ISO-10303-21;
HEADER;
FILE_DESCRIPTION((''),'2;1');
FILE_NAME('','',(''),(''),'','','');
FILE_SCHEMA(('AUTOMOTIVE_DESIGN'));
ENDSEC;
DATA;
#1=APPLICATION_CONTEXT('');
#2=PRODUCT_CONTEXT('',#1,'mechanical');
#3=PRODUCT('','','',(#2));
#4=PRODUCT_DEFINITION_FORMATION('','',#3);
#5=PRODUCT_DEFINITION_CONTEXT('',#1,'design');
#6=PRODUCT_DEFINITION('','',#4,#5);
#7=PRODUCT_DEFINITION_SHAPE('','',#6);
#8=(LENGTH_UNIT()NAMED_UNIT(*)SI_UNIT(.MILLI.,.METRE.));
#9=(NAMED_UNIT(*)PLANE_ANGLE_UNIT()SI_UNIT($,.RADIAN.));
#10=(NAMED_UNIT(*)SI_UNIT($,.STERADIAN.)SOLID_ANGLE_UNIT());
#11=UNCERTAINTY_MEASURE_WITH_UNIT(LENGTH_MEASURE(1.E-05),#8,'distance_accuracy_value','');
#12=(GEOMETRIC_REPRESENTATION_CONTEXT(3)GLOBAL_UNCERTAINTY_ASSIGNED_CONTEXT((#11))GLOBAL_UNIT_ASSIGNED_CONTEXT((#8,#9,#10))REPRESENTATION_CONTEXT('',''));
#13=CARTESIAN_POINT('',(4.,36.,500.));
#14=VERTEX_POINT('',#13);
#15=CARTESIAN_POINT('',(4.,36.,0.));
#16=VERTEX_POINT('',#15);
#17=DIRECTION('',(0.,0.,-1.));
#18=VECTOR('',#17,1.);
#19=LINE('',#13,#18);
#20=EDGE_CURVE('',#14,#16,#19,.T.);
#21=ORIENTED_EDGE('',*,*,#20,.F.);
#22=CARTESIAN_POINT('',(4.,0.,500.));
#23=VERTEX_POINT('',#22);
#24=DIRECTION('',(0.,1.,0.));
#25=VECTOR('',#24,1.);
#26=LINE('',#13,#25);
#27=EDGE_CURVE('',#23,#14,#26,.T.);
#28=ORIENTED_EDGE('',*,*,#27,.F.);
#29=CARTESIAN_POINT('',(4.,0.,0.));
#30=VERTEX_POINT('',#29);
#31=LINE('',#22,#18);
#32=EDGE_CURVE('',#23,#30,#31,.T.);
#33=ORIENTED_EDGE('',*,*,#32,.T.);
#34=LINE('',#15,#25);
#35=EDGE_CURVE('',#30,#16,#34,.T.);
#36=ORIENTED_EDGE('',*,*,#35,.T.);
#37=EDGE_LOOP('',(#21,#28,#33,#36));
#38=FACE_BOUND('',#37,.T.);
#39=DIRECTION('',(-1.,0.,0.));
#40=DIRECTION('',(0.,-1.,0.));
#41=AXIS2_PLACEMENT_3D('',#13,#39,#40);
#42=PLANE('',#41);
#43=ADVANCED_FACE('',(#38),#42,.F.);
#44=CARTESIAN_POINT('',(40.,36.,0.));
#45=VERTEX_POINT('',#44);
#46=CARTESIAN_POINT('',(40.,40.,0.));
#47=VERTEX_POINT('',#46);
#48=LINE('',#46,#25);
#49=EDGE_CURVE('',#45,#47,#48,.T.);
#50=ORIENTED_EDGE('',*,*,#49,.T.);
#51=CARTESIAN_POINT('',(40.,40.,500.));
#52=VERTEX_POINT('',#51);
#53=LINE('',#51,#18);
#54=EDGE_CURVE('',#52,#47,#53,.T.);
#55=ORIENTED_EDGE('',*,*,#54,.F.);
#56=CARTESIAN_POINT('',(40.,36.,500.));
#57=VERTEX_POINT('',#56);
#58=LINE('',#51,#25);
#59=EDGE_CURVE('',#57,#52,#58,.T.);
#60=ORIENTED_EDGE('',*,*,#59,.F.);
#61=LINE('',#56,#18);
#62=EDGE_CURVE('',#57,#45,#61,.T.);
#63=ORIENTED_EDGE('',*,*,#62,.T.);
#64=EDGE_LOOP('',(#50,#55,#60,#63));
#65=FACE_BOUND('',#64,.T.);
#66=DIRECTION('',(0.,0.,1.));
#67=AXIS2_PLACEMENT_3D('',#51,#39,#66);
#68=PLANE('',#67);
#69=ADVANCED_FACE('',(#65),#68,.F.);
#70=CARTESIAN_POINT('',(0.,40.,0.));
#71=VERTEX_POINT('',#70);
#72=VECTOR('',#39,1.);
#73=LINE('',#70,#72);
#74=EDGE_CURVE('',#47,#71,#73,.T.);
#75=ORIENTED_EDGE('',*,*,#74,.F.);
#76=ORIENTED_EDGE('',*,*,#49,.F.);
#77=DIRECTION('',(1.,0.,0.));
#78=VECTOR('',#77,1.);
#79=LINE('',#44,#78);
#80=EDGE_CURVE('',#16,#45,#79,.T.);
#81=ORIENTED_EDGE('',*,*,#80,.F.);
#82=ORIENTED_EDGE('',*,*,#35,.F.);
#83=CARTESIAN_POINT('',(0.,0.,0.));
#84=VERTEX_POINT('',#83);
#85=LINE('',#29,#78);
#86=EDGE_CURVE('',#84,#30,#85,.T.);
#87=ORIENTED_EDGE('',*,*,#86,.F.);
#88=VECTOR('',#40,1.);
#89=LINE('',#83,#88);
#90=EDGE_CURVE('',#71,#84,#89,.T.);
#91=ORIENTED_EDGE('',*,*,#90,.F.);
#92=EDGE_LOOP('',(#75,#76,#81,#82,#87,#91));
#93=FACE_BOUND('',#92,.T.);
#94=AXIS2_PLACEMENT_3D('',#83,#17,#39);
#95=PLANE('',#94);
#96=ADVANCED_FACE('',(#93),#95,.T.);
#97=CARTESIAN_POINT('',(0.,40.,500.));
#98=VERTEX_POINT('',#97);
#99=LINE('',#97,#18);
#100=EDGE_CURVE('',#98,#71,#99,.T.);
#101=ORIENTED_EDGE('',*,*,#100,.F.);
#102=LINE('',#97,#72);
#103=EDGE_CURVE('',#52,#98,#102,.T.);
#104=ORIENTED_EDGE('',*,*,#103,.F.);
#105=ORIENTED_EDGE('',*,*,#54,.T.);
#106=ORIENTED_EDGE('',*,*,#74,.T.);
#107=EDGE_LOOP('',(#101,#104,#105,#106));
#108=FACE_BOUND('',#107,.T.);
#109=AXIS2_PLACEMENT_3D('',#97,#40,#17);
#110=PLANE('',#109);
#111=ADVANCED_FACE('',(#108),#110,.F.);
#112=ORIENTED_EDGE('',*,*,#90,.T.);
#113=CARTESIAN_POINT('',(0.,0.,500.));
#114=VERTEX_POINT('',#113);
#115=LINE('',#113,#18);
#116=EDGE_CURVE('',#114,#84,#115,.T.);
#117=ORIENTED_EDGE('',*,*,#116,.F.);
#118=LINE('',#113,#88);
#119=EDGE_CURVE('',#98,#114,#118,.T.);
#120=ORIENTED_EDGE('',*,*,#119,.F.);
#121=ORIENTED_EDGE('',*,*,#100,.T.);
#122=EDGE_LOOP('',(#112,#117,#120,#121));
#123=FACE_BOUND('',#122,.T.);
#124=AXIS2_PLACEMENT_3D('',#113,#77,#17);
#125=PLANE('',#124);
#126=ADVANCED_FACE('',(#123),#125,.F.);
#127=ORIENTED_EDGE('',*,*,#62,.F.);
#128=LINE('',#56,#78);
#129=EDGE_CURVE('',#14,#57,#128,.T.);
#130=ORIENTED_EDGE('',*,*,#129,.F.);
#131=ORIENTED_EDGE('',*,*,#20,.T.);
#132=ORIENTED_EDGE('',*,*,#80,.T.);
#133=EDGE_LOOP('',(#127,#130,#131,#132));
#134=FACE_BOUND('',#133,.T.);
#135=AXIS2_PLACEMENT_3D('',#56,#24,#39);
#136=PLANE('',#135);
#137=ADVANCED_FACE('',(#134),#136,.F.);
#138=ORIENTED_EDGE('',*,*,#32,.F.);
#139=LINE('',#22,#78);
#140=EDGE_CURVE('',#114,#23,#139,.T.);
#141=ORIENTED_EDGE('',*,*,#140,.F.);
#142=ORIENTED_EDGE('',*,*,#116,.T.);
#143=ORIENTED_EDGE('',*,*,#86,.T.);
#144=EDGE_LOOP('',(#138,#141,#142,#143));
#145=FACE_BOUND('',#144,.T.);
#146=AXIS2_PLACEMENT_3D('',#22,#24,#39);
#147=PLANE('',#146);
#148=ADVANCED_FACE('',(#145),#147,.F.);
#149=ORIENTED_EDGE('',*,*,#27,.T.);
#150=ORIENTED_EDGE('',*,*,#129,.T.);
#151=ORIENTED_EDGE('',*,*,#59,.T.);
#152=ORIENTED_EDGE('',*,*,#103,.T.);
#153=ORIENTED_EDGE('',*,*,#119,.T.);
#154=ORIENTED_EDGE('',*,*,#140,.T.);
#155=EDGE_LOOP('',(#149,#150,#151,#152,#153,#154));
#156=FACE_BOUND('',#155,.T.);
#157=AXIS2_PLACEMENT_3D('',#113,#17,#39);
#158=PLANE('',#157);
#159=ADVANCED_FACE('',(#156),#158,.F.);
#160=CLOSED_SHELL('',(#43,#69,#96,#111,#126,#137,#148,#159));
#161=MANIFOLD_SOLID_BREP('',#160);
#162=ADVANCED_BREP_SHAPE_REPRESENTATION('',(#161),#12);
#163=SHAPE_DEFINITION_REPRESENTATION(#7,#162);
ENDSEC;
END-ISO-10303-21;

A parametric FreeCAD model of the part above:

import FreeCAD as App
import Part
import Sketcher

V = App.Vector
Q = App.Units.Quantity

doc = App.newDocument("Part")
body = doc.addObject("PartDesign::Body", "Body")

# Sketch on XY plane
sketch1 = doc.addObject("Sketcher::SketchObject", "Sketch")
body.addObject(sketch1)
sketch1.AttachmentSupport = (doc.XY_Plane, [""])
sketch1.MapMode = "FlatFace"
sketch1.addGeometry([
    Part.LineSegment(V(0, 40, 0), V(0, 0, 0)),  # 0
    Part.LineSegment(V(0, 0, 0), V(4, 0, 0)),  # 1
    Part.LineSegment(V(4, 0, 0), V(4, 36, 0)),  # 2
    Part.LineSegment(V(4, 36, 0), V(40, 36, 0)),  # 3
    Part.LineSegment(V(40, 36, 0), V(40, 40, 0)),  # 4
    Part.LineSegment(V(40, 40, 0), V(0, 40, 0)),  # 5
], False)
sketch1.addConstraint([
    Sketcher.Constraint("Coincident", 0, 2, 1, 1),
    Sketcher.Constraint("Coincident", 1, 2, 2, 1),
    Sketcher.Constraint("Coincident", 2, 2, 3, 1),
    Sketcher.Constraint("Coincident", 3, 2, 4, 1),
    Sketcher.Constraint("Coincident", 4, 2, 5, 1),
    Sketcher.Constraint("Coincident", 5, 2, 0, 1),
    Sketcher.Constraint("Vertical", 0),
    Sketcher.Constraint("Horizontal", 1),
    Sketcher.Constraint("Vertical", 2),
    Sketcher.Constraint("Horizontal", 3),
    Sketcher.Constraint("Vertical", 4),
    Sketcher.Constraint("Horizontal", 5),
    Sketcher.Constraint("Coincident", 0, 2, -1, 1),
    Sketcher.Constraint("Equal", 5, 0),
    Sketcher.Constraint("Equal", 3, 2),
    Sketcher.Constraint("DistanceX", 1, 1, 1, 2, Q("4 mm")),
    Sketcher.Constraint("DistanceX", 3, 1, 3, 2, Q("36 mm")),
])
pad1 = doc.addObject("PartDesign::Pad", "Pad")
body.addObject(pad1)
pad1.Profile = sketch1
pad1.Length = 500

doc.recompute()
